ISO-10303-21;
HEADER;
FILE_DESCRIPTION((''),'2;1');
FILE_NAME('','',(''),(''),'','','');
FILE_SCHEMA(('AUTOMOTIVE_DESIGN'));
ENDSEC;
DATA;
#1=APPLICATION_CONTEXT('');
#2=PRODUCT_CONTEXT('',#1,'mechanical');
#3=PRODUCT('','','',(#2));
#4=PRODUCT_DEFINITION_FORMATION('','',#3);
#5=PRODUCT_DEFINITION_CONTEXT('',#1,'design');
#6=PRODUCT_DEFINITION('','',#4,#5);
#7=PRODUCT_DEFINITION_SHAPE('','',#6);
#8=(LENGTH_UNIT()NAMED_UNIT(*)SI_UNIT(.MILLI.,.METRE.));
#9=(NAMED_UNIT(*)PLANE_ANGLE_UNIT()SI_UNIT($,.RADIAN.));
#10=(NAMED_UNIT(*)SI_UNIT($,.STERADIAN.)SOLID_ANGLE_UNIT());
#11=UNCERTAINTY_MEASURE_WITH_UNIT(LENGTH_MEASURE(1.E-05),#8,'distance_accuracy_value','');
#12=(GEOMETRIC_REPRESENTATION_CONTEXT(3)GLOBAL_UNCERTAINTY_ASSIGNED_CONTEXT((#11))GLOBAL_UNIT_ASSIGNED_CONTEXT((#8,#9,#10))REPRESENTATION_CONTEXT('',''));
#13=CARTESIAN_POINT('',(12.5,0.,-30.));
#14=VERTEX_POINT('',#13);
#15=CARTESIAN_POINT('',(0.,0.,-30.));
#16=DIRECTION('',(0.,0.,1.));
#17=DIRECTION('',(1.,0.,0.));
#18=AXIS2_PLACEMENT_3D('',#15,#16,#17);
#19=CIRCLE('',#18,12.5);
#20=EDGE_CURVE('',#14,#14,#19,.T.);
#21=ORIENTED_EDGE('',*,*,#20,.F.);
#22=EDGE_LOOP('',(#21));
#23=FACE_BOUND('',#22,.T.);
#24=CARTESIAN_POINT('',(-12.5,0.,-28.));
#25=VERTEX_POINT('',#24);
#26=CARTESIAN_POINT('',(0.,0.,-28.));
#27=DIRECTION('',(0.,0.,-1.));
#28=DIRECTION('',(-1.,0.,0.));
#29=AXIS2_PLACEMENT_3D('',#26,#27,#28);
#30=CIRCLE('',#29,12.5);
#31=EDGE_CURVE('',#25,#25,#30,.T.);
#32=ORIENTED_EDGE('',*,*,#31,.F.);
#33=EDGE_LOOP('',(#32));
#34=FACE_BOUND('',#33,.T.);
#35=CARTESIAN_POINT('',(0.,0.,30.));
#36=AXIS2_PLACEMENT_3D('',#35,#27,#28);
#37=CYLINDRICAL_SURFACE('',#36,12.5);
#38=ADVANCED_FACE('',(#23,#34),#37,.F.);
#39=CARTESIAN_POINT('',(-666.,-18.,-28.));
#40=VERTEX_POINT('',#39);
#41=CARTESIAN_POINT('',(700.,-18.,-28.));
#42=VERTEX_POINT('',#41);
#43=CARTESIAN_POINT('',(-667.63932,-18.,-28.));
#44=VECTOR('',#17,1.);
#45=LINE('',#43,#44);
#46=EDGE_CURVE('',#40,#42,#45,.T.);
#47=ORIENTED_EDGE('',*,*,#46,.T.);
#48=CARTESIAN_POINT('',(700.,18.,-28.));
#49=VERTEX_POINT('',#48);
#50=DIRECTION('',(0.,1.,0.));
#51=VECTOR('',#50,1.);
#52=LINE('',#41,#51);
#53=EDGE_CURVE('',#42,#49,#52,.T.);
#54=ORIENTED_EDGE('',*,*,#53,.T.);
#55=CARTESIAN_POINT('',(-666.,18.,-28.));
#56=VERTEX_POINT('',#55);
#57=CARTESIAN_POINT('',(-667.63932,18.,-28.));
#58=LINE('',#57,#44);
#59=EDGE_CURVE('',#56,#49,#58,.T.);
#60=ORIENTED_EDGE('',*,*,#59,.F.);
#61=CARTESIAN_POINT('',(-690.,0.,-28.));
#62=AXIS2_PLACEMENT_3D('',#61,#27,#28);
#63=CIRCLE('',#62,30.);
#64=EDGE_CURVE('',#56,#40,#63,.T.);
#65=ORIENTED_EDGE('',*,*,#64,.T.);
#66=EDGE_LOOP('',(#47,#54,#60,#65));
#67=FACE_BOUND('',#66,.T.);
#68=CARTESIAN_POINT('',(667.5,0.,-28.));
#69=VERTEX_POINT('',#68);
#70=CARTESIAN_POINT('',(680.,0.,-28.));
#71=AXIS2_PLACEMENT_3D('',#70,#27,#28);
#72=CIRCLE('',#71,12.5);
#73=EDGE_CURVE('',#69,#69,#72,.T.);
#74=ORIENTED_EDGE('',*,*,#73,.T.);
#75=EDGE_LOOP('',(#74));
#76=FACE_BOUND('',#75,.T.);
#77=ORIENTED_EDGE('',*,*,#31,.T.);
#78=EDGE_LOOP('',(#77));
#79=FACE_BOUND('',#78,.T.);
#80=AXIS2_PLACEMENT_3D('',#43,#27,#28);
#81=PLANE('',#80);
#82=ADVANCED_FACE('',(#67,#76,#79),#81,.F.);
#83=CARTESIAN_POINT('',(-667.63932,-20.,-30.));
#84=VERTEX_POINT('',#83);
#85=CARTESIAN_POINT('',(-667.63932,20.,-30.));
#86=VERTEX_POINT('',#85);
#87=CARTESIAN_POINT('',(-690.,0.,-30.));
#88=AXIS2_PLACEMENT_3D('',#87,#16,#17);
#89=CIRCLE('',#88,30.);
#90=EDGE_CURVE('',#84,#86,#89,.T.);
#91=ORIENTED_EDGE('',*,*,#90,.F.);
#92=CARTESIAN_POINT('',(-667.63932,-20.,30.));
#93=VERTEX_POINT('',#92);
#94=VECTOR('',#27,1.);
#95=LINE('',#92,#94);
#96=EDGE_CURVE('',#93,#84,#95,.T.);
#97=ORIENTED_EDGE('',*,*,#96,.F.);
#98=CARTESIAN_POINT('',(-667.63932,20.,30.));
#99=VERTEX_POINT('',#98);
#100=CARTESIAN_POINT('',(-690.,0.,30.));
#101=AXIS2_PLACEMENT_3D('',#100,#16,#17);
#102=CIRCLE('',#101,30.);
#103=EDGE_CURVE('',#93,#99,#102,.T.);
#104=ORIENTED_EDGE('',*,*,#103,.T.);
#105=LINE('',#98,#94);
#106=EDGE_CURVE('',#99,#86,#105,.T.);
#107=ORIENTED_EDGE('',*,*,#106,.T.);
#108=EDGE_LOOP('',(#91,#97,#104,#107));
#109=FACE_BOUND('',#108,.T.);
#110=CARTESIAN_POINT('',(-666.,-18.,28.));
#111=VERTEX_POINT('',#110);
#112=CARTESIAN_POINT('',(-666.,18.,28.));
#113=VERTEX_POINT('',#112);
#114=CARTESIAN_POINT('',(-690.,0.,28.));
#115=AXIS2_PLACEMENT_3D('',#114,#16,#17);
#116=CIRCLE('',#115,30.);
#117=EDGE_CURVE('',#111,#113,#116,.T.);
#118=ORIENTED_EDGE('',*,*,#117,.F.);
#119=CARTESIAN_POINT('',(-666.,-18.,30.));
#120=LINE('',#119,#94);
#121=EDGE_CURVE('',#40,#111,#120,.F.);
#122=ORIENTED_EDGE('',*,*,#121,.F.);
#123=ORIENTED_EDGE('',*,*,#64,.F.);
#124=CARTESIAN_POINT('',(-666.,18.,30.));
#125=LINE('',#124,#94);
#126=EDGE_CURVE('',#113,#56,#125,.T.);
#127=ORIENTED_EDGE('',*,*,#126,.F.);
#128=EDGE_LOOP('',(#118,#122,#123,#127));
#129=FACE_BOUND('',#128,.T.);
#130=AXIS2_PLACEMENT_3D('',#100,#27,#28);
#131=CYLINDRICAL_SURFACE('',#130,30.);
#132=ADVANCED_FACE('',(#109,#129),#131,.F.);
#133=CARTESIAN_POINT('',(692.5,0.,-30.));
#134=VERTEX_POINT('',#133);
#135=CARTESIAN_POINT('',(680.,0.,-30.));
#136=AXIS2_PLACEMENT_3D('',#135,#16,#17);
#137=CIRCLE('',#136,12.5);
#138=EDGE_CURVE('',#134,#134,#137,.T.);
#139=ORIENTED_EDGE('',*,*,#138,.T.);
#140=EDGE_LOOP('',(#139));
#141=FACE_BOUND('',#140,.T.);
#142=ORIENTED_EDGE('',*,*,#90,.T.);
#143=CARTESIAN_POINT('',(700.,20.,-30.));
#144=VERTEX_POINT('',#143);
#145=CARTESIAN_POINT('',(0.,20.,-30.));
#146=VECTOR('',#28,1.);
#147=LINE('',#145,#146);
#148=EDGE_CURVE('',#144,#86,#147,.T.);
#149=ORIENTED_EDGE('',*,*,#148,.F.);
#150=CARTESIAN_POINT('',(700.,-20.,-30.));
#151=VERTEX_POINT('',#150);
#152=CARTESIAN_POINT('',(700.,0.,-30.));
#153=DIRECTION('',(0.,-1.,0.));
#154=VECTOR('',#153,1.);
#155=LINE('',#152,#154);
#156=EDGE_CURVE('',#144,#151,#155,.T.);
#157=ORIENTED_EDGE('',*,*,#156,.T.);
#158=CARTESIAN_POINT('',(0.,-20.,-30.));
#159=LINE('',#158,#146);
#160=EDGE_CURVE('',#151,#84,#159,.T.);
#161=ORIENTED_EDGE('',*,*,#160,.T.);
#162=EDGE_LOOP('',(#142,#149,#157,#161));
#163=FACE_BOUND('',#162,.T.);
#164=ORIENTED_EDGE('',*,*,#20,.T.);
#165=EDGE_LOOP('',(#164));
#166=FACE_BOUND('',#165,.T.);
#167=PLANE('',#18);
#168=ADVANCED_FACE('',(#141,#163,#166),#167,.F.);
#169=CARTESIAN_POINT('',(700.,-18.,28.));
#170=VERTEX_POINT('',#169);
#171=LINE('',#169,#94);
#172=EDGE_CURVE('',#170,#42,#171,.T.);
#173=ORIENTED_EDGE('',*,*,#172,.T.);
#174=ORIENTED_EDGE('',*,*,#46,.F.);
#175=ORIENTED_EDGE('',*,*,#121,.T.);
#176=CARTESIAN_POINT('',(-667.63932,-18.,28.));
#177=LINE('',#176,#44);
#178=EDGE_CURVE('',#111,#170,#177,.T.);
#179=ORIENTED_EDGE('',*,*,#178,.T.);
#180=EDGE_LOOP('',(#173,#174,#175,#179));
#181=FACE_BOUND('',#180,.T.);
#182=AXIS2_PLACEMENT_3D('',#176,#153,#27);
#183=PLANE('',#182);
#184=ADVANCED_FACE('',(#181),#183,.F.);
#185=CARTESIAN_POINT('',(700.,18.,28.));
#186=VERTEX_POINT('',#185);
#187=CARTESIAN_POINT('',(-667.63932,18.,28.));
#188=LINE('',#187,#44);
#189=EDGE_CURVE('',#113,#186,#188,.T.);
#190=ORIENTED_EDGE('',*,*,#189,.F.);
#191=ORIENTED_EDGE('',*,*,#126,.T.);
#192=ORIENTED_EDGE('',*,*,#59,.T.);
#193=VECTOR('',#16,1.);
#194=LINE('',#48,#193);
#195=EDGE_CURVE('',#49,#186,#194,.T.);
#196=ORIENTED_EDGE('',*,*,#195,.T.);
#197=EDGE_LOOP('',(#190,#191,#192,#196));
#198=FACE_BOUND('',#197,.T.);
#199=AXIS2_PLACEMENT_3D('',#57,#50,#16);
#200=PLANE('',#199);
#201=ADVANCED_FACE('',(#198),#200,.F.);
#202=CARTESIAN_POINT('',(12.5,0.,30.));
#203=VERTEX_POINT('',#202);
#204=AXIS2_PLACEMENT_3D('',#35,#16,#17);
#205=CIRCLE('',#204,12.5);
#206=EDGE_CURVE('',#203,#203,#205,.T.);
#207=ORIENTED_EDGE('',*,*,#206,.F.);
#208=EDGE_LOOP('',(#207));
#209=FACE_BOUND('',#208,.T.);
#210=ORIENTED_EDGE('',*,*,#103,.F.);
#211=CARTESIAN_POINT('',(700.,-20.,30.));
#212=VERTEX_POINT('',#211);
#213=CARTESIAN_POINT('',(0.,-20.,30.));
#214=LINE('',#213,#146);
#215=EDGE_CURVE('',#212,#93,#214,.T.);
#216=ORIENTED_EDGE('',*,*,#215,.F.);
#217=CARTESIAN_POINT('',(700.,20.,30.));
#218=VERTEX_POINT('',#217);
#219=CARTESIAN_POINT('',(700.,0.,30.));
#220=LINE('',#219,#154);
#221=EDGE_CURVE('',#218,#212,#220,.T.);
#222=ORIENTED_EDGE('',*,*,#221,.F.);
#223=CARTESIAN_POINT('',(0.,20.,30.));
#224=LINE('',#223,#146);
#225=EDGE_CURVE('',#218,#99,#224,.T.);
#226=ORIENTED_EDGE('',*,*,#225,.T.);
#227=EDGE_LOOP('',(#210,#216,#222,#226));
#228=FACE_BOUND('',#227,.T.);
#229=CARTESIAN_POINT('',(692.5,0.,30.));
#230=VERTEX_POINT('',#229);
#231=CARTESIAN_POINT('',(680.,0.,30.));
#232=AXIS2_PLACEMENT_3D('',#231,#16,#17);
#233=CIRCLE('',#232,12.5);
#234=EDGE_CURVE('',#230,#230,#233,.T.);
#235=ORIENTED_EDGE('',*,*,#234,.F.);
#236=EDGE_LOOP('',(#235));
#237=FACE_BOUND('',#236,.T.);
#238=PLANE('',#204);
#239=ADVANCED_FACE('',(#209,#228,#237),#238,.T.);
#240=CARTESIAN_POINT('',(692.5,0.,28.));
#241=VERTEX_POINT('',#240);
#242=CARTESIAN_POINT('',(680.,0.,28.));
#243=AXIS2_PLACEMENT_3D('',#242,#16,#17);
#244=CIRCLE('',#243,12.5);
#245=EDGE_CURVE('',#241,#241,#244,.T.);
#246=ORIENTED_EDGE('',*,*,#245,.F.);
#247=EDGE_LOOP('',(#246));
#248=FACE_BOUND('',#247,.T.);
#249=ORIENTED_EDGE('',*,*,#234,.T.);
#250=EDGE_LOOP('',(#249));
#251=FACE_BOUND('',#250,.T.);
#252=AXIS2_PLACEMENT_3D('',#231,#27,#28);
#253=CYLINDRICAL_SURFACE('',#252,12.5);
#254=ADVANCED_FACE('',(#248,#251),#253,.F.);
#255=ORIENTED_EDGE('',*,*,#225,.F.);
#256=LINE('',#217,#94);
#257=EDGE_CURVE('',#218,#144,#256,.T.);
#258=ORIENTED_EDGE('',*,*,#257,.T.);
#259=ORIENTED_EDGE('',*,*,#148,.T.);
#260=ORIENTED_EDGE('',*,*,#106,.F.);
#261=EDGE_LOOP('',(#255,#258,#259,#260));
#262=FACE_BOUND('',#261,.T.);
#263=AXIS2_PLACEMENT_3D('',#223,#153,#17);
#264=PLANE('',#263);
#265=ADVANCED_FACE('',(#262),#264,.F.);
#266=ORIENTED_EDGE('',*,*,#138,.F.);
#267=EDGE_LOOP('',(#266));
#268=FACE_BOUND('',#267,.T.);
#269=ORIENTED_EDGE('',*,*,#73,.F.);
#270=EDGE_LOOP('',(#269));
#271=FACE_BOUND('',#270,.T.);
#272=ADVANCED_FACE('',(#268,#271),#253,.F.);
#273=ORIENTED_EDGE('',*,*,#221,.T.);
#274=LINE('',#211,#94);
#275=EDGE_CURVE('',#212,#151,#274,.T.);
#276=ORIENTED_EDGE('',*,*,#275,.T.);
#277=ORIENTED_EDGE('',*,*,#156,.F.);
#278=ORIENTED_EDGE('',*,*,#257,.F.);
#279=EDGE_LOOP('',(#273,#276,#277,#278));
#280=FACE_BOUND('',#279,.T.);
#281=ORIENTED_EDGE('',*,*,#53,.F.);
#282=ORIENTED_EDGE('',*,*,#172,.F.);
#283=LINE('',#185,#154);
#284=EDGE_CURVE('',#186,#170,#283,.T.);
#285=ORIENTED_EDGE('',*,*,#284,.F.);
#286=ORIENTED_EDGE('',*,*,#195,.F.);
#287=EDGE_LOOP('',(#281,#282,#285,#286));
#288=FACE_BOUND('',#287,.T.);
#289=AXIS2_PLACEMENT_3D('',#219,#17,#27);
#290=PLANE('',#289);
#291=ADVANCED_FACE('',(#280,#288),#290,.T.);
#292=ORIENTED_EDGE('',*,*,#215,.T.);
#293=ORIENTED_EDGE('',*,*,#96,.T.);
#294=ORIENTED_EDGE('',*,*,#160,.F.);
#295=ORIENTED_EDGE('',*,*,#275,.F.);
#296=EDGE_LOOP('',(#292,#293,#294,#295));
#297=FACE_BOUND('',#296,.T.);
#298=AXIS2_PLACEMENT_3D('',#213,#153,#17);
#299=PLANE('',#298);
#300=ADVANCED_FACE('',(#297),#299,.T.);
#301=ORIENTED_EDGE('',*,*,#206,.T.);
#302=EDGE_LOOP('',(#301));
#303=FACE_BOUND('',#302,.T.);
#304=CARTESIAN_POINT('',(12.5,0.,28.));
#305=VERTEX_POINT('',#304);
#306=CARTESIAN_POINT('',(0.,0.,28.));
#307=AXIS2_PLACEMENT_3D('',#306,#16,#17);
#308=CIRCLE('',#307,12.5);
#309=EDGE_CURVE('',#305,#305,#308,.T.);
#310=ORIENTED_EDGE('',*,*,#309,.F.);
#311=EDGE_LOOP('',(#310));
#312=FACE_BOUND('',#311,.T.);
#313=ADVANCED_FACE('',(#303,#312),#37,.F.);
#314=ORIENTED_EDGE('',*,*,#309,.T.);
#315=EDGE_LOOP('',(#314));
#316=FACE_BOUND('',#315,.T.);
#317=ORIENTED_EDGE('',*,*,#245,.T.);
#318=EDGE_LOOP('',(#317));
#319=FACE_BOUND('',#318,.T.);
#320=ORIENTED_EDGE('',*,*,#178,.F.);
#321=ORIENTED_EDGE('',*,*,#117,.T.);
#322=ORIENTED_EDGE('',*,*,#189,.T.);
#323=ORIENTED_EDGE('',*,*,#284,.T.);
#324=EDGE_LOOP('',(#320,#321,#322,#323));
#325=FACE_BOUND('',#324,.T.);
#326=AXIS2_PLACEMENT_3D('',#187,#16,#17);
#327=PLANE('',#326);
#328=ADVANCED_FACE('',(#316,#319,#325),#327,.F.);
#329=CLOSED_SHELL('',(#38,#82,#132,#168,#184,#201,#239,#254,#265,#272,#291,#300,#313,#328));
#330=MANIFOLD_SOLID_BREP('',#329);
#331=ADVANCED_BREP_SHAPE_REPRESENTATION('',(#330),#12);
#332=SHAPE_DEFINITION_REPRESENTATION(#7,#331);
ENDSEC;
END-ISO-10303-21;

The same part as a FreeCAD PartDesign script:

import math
import FreeCAD as App
import Part
import Sketcher

V = App.Vector

doc = App.newDocument("Part")
body = doc.addObject("PartDesign::Body", "Body")

sketch1 = body.newObject("Sketcher::SketchObject", "Sketch")
sketch1.AttachmentSupport = (doc.getObject("XY_Plane"), [""])
sketch1.MapMode = "FlatFace"
sketch1.addGeometry(Part.LineSegment(V(700, -20, 0), V(700, 20, 0)), False)
sketch1.addGeometry(Part.LineSegment(V(700, 20, 0), V(-668, 20, 0)), False)
sketch1.addGeometry(Part.ArcOfCircle(Part.Circle(V(-690, 0, 0), V(0, 0, 1), 30), math.radians(0), math.radians(42)), False)
sketch1.addGeometry(Part.ArcOfCircle(Part.Circle(V(-690, 0, 0), V(0, 0, 1), 30), math.radians(-42), math.radians(0)), False)
sketch1.addGeometry(Part.LineSegment(V(-668, -20, 0), V(700, -20, 0)), False)
sketch1.addGeometry(Part.Circle(V(0, 0, 0), V(0, 0, 1), 12), False)
sketch1.addGeometry(Part.Circle(V(680, 0, 0), V(0, 0, 1), 12), False)
sketch1.addConstraint(Sketcher.Constraint("Coincident", 0, 2, 1, 1))
sketch1.addConstraint(Sketcher.Constraint("Coincident", 1, 2, 2, 2))
sketch1.addConstraint(Sketcher.Constraint("Tangent", 2, 1, 3, 2))
sketch1.addConstraint(Sketcher.Constraint("Coincident", 3, 1, 4, 1))
sketch1.addConstraint(Sketcher.Constraint("Coincident", 4, 2, 0, 1))
sketch1.addConstraint(Sketcher.Constraint("Vertical", 0))
sketch1.addConstraint(Sketcher.Constraint("Horizontal", 1))
sketch1.addConstraint(Sketcher.Constraint("Horizontal", 4))
sketch1.addConstraint(Sketcher.Constraint("Coincident", 5, 3, -1, 1))
sketch1.addConstraint(Sketcher.Constraint("Equal", 2, 3))
sketch1.addConstraint(Sketcher.Constraint("Equal", 5, 6))
sketch1.addConstraint(Sketcher.Constraint("Symmetric", 1, 2, 3, 1, -1))
sketch1.addConstraint(Sketcher.Constraint("PointOnObject", 6, 3, -1))
sketch1.addConstraint(Sketcher.Constraint("PointOnObject", 2, 1, -1))
sketch1.addConstraint(Sketcher.Constraint("Diameter", 5, 25.0))
sketch1.addConstraint(Sketcher.Constraint("Radius", 2, 30.0))
sketch1.addConstraint(Sketcher.Constraint("DistanceY", 0, 1, 0, 2, 40.0))
sketch1.addConstraint(Sketcher.Constraint("DistanceX", 2, 3, -1, 1, 690.0))
sketch1.addConstraint(Sketcher.Constraint("DistanceX", -1, 1, 6, 3, 680.0))
sketch1.addConstraint(Sketcher.Constraint("DistanceX", -1, 1, 0, 2, 700.0))
pad1 = body.newObject("PartDesign::Pad", "Pad")
pad1.Profile = sketch1
pad1.Length = 60
pad1.Midplane = True

sketch2 = body.newObject("Sketcher::SketchObject", "Sketch001")
sketch2.AttachmentSupport = (doc.getObject("YZ_Plane"), [""])
sketch2.MapMode = "FlatFace"
sketch2.AttachmentOffset = App.Placement(V(0, 0, 700), App.Rotation())
sketch2.addGeometry(Part.LineSegment(V(18, 28, 0), V(-18, 28, 0)), False)
sketch2.addGeometry(Part.LineSegment(V(-18, 28, 0), V(-18, -28, 0)), False)
sketch2.addGeometry(Part.LineSegment(V(-18, -28, 0), V(18, -28, 0)), False)
sketch2.addGeometry(Part.LineSegment(V(18, -28, 0), V(18, 28, 0)), False)
sketch2.addConstraint(Sketcher.Constraint("Coincident", 0, 2, 1, 1))
sketch2.addConstraint(Sketcher.Constraint("Coincident", 1, 2, 2, 1))
sketch2.addConstraint(Sketcher.Constraint("Coincident", 2, 2, 3, 1))
sketch2.addConstraint(Sketcher.Constraint("Coincident", 3, 2, 0, 1))
sketch2.addConstraint(Sketcher.Constraint("Horizontal", 0))
sketch2.addConstraint(Sketcher.Constraint("Vertical", 1))
sketch2.addConstraint(Sketcher.Constraint("Horizontal", 2))
sketch2.addConstraint(Sketcher.Constraint("Vertical", 3))
sketch2.addConstraint(Sketcher.Constraint("Symmetric", 0, 2, 2, 2, -1, 1))
sketch2.addConstraint(Sketcher.Constraint("DistanceX", 0, 2, 0, 1, 36.0))
sketch2.addConstraint(Sketcher.Constraint("DistanceY", 1, 2, 1, 1, 56.0))
pocket1 = body.newObject("PartDesign::Pocket", "Pocket")
pocket1.Profile = sketch2
pocket1.Type = "ThroughAll"

doc.recompute()
